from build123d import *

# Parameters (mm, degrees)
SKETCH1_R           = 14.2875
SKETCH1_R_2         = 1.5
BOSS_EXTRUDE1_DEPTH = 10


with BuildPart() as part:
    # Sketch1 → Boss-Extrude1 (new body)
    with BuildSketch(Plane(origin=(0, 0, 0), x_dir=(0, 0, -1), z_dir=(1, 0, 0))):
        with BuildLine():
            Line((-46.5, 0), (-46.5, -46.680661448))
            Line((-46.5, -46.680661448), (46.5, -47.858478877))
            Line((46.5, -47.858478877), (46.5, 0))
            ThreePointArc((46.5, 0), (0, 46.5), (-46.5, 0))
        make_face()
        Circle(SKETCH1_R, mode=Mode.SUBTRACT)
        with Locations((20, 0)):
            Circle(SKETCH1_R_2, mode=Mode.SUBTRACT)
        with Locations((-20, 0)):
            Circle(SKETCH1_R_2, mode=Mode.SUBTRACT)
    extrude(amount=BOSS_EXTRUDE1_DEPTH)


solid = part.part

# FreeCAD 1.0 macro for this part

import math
import FreeCAD as App
import Part
import Sketcher
Q = App.Units.Quantity

doc = App.newDocument("Part")
body = doc.addObject("PartDesign::Body", "Body")

sketch1 = doc.addObject("Sketcher::SketchObject", "Sketch")
body.addObject(sketch1)
sketch1.AttachmentSupport = (doc.YZ_Plane, [""])
sketch1.MapMode = "FlatFace"
sketch1.addGeometry(Part.LineSegment(App.Vector(0, 46.5, 0), App.Vector(-46.7, 46.5, 0)), False)
sketch1.addGeometry(Part.LineSegment(App.Vector(-46.7, 46.5, 0), App.Vector(-47.9, -46.5, 0)), False)
sketch1.addGeometry(Part.LineSegment(App.Vector(-47.9, -46.5, 0), App.Vector(0, -46.5, 0)), False)
sketch1.addGeometry(Part.ArcOfCircle(Part.Circle(App.Vector(0, 0, 0), App.Vector(0, 0, 1), 46.5), math.radians(-90), math.radians(90)), False)
sketch1.addGeometry(Part.Circle(App.Vector(0, 20, 0), App.Vector(0, 0, 1), 1.5), False)
sketch1.addGeometry(Part.Circle(App.Vector(0, 0, 0), App.Vector(0, 0, 1), 14.3), False)
sketch1.addGeometry(Part.Circle(App.Vector(0, -20, 0), App.Vector(0, 0, 1), 1.5), False)
sketch1.addConstraint(Sketcher.Constraint("Coincident", 0, 2, 1, 1))
sketch1.addConstraint(Sketcher.Constraint("Coincident", 1, 2, 2, 1))
sketch1.addConstraint(Sketcher.Constraint("Tangent", 2, 2, 3, 1))
sketch1.addConstraint(Sketcher.Constraint("Tangent", 3, 2, 0, 1))
sketch1.addConstraint(Sketcher.Constraint("Horizontal", 0))
sketch1.addConstraint(Sketcher.Constraint("Horizontal", 2))
sketch1.addConstraint(Sketcher.Constraint("Coincident", 3, 3, -1, 1))
sketch1.addConstraint(Sketcher.Constraint("Coincident", 5, 3, -1, 1))
sketch1.addConstraint(Sketcher.Constraint("Equal", 4, 6))
sketch1.addConstraint(Sketcher.Constraint("Symmetric", 4, 3, 6, 3, -1, 1))
sketch1.addConstraint(Sketcher.Constraint("PointOnObject", 4, 3, -2))
sketch1.addConstraint(Sketcher.Constraint("Diameter", 4, Q("3 mm")))
sketch1.addConstraint(Sketcher.Constraint("Radius", 3, Q("46.5 mm")))
sketch1.addConstraint(Sketcher.Constraint("Diameter", 5, Q("28.575 mm")))
sketch1.addConstraint(Sketcher.Constraint("DistanceY", -1, 1, 4, 3, Q("20 mm")))
sketch1.addConstraint(Sketcher.Constraint("DistanceX", 0, 2, 0, 1, Q("46.680661 mm")))
sketch1.addConstraint(Sketcher.Constraint("DistanceX", 2, 1, 2, 2, Q("47.858479 mm")))
pad1 = doc.addObject("PartDesign::Pad", "Pad")
body.addObject(pad1)
pad1.Profile = sketch1
pad1.Length = 10

doc.recompute()
